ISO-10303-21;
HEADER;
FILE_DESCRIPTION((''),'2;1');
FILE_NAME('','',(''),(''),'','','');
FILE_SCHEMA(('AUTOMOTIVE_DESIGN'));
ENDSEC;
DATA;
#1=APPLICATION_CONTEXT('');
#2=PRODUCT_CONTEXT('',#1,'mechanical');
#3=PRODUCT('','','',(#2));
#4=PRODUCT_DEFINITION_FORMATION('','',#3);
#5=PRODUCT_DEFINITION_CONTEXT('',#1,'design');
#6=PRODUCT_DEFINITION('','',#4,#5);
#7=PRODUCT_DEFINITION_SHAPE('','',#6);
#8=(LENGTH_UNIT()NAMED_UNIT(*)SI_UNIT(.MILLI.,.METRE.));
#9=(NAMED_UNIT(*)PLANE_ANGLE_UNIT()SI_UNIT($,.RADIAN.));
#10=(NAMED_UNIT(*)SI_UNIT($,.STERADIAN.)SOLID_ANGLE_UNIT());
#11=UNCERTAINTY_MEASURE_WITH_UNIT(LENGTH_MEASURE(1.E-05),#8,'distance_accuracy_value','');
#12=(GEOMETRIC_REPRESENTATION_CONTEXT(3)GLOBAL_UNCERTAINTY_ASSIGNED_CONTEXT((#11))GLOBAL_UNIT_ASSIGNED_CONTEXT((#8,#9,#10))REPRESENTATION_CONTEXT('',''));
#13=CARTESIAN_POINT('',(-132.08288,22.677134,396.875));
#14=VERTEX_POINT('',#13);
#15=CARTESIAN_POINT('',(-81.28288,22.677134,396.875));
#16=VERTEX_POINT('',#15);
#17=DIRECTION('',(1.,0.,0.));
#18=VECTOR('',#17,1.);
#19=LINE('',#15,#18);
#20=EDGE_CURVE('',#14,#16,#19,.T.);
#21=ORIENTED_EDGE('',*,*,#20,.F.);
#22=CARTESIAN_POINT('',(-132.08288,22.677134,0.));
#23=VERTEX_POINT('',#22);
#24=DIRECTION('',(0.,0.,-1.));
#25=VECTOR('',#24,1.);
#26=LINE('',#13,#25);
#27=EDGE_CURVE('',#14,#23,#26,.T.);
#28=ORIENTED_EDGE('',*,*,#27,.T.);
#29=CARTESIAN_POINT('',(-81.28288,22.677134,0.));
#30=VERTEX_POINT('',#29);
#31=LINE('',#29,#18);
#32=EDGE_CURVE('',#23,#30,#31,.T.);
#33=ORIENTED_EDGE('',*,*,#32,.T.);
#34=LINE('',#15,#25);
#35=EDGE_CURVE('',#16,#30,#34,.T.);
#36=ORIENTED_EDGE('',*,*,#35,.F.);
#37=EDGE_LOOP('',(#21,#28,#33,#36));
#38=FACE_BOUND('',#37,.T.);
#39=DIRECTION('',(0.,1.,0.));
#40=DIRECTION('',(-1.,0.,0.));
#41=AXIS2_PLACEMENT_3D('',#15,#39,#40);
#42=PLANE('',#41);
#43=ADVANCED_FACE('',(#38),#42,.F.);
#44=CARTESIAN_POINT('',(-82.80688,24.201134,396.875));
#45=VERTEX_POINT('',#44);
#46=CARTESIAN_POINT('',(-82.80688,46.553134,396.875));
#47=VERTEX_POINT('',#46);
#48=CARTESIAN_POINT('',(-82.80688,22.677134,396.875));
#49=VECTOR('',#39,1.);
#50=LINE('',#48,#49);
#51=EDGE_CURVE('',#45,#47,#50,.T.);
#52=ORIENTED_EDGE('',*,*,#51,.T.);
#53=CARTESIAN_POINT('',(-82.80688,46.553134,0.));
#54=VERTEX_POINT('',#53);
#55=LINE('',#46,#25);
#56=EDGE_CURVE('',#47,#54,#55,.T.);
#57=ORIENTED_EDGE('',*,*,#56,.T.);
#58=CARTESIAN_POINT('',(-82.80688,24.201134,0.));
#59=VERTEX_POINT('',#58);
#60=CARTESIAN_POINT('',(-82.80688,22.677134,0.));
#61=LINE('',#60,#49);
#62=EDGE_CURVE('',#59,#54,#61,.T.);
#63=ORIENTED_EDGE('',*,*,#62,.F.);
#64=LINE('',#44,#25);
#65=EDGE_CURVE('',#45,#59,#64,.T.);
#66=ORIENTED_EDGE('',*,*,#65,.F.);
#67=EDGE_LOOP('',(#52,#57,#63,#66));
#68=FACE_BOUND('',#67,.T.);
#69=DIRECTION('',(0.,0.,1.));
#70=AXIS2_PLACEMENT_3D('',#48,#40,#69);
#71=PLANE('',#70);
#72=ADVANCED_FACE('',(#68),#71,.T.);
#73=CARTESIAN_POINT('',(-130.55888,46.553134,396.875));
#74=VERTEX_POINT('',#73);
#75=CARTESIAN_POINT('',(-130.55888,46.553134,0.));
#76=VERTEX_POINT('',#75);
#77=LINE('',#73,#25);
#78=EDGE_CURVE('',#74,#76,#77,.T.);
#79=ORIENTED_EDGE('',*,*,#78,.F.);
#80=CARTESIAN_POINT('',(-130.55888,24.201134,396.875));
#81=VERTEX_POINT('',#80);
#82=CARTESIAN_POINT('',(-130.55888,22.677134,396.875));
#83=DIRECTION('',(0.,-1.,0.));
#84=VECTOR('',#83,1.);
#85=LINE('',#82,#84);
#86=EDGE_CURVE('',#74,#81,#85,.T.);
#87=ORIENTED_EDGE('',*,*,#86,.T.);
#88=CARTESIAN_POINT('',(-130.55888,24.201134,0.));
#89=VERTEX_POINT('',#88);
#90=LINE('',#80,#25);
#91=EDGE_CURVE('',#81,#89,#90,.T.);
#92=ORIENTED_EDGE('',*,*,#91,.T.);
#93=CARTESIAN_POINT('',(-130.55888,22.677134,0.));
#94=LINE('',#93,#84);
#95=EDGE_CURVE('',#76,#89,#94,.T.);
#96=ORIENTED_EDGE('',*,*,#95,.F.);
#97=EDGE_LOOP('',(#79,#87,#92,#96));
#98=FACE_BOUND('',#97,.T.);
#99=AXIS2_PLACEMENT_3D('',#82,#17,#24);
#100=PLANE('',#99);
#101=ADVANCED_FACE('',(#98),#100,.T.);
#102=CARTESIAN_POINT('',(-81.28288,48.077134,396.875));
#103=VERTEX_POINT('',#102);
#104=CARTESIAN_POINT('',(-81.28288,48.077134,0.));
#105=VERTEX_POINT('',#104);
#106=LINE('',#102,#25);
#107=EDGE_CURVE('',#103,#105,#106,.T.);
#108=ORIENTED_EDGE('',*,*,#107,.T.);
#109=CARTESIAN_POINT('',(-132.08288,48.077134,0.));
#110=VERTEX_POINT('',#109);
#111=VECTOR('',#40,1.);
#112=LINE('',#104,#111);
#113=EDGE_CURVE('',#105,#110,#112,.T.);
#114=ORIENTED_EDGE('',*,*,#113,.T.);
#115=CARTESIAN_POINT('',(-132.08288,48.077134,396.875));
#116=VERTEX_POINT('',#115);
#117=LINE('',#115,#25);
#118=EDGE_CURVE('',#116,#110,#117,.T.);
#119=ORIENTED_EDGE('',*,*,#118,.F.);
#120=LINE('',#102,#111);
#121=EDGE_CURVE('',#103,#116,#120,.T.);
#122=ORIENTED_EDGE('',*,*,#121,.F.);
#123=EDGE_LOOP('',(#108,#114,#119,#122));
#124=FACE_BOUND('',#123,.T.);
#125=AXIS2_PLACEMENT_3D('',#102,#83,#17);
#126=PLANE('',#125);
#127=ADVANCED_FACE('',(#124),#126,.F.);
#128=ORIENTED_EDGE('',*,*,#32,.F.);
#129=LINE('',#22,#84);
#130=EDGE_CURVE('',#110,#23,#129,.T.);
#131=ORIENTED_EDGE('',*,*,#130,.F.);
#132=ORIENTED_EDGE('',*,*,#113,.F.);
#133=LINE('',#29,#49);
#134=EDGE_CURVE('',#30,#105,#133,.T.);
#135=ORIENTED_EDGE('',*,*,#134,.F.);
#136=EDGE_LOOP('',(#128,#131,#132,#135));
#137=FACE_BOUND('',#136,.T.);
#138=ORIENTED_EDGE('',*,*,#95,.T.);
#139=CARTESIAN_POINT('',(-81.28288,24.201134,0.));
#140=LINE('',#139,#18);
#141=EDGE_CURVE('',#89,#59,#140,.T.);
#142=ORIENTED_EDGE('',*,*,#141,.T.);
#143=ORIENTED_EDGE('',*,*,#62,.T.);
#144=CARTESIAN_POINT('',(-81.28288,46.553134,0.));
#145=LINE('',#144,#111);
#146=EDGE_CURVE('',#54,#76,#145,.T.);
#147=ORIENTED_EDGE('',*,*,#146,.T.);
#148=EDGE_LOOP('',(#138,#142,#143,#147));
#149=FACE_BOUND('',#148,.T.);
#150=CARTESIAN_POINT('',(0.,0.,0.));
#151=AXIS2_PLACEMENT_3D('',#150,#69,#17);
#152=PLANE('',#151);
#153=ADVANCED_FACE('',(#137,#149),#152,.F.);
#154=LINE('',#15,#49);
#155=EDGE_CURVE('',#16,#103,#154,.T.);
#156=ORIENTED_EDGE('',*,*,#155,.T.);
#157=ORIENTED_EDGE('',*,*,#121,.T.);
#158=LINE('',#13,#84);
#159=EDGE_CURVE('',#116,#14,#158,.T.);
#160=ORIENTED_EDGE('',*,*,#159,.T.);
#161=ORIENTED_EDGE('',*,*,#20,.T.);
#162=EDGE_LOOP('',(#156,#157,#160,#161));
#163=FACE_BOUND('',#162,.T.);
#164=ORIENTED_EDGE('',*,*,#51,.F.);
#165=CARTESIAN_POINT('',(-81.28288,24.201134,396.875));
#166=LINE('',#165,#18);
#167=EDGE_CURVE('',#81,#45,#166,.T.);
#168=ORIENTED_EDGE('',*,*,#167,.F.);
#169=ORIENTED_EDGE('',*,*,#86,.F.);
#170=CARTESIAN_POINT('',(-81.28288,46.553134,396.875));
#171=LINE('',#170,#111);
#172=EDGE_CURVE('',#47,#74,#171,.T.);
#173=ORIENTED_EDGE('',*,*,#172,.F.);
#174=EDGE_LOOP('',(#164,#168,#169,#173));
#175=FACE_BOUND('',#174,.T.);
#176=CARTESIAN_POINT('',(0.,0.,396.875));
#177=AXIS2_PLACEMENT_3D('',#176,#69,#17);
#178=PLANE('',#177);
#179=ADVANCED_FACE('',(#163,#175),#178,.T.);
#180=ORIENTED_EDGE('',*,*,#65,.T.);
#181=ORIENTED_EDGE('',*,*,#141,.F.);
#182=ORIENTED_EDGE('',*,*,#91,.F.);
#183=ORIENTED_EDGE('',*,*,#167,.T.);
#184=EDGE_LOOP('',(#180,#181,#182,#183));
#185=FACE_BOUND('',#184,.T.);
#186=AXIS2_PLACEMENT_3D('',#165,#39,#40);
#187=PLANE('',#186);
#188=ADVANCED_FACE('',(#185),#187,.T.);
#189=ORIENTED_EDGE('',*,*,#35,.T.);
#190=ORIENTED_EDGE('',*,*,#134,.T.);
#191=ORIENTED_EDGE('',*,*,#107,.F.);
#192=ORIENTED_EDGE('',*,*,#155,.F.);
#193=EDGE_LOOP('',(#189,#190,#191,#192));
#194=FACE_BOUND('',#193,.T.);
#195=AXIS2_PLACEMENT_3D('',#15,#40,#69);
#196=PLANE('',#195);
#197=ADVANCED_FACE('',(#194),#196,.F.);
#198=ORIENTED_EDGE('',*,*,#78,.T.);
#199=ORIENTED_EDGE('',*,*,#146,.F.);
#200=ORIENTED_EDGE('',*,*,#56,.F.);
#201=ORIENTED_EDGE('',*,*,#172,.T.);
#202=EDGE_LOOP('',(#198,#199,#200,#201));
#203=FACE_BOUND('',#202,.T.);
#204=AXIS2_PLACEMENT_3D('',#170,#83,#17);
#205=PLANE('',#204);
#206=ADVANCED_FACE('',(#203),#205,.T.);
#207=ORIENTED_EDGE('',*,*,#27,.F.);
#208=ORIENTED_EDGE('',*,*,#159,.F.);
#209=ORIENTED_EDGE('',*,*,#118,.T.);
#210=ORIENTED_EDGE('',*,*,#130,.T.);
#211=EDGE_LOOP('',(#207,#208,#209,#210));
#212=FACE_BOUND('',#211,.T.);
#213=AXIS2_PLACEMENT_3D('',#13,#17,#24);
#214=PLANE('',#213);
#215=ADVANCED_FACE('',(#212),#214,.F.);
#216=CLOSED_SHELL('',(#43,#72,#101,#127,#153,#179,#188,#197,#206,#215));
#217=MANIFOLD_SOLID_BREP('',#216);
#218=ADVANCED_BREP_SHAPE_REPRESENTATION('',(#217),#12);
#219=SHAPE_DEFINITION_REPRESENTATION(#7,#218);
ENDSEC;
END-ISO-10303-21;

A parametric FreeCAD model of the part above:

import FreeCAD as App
import Part
import Sketcher
Q = App.Units.Quantity

doc = App.newDocument("Part")
body = doc.addObject("PartDesign::Body", "Body")

# Sketch on XY plane
sketch1 = body.newObject("Sketcher::SketchObject", "Sketch")
sketch1.AttachmentSupport = (doc.getObject("XY_Plane"), [""])
sketch1.MapMode = "FlatFace"
sketch1.addGeometry(Part.LineSegment(App.Vector(-132, 48, 0), App.Vector(-132, 23, 0)), False)
sketch1.addGeometry(Part.LineSegment(App.Vector(-132, 23, 0), App.Vector(-81, 23, 0)), False)
sketch1.addGeometry(Part.LineSegment(App.Vector(-81, 23, 0), App.Vector(-81, 48, 0)), False)
sketch1.addGeometry(Part.LineSegment(App.Vector(-81, 48, 0), App.Vector(-132, 48, 0)), False)
sketch1.addGeometry(Part.LineSegment(App.Vector(-83, 24, 0), App.Vector(-131, 24, 0)), False)
sketch1.addGeometry(Part.LineSegment(App.Vector(-131, 24, 0), App.Vector(-131, 47, 0)), False)
sketch1.addGeometry(Part.LineSegment(App.Vector(-131, 47, 0), App.Vector(-83, 47, 0)), False)
sketch1.addGeometry(Part.LineSegment(App.Vector(-83, 47, 0), App.Vector(-83, 24, 0)), False)
sketch1.addConstraint(Sketcher.Constraint("Coincident", 0, 2, 1, 1))
sketch1.addConstraint(Sketcher.Constraint("Coincident", 1, 2, 2, 1))
sketch1.addConstraint(Sketcher.Constraint("Coincident", 2, 2, 3, 1))
sketch1.addConstraint(Sketcher.Constraint("Coincident", 3, 2, 0, 1))
sketch1.addConstraint(Sketcher.Constraint("Coincident", 4, 2, 5, 1))
sketch1.addConstraint(Sketcher.Constraint("Coincident", 5, 2, 6, 1))
sketch1.addConstraint(Sketcher.Constraint("Coincident", 6, 2, 7, 1))
sketch1.addConstraint(Sketcher.Constraint("Coincident", 7, 2, 4, 1))
sketch1.addConstraint(Sketcher.Constraint("Vertical", 0))
sketch1.addConstraint(Sketcher.Constraint("Horizontal", 1))
sketch1.addConstraint(Sketcher.Constraint("Vertical", 2))
sketch1.addConstraint(Sketcher.Constraint("Horizontal", 3))
sketch1.addConstraint(Sketcher.Constraint("Horizontal", 4))
sketch1.addConstraint(Sketcher.Constraint("Vertical", 5))
sketch1.addConstraint(Sketcher.Constraint("Horizontal", 6))
sketch1.addConstraint(Sketcher.Constraint("Vertical", 7))
sketch1.addConstraint(Sketcher.Constraint("DistanceX", 1, 1, 1, 2, Q("2 in")))
sketch1.addConstraint(Sketcher.Constraint("DistanceY", 0, 2, 0, 1, Q("1 in")))
sketch1.addConstraint(Sketcher.Constraint("DistanceX", 4, 2, 4, 1, Q("1.88 in")))
sketch1.addConstraint(Sketcher.Constraint("DistanceY", 5, 1, 5, 2, Q("0.88 in")))
sketch1.addConstraint(Sketcher.Constraint("DistanceX", 0, 2, 4, 2, Q("0.06 in")))
sketch1.addConstraint(Sketcher.Constraint("DistanceY", 0, 2, 4, 2, Q("0.06 in")))
sketch1.addConstraint(Sketcher.Constraint("DistanceX", 0, 2, -1, 1, 132.08288))
sketch1.addConstraint(Sketcher.Constraint("DistanceY", -1, 1, 0, 2, 22.677134))
pad1 = body.newObject("PartDesign::Pad", "Pad")
pad1.Profile = sketch1
pad1.Length = Q("15.625 in")

doc.recompute()
